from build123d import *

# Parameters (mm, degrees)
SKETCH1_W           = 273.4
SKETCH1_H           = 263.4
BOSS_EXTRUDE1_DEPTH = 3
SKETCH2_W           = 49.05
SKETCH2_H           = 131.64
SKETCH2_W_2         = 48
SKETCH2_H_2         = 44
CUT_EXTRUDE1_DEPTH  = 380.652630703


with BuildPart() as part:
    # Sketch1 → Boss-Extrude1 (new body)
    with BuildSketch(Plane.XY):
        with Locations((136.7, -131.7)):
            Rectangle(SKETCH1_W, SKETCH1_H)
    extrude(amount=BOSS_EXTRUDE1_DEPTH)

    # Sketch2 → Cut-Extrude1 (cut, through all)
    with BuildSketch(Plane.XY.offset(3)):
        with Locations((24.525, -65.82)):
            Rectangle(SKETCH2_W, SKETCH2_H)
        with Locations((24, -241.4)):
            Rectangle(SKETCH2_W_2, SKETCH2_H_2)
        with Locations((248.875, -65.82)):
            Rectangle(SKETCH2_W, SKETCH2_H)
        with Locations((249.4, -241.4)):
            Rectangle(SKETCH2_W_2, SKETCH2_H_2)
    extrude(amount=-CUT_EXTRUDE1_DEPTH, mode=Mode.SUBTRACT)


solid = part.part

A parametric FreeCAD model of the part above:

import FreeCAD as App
import Part
import Sketcher

V = App.Vector


def add_polygon(sketch, points):
    """Adds a closed chain of lines whose ends are joined by coincident constraints."""
    first, n = sketch.GeometryCount, len(points)
    for a, b in zip(points, points[1:] + points[:1]):
        sketch.addGeometry(Part.LineSegment(App.Vector(*a, 0), App.Vector(*b, 0)), False)
    for i in range(n):
        sketch.addConstraint(Sketcher.Constraint("Coincident", first + i, 2, first + (i + 1) % n, 1))

doc = App.newDocument("Part")
body = doc.addObject("PartDesign::Body", "Body")

sketch1 = body.newObject("Sketcher::SketchObject", "Sketch")
sketch1.AttachmentSupport = (doc.getObject("XY_Plane"), [""])
sketch1.MapMode = "FlatFace"
add_polygon(sketch1, [(0, 0), (0, -263.4), (273.4, -263.4), (273.4, 0)])
sketch1.addConstraint(Sketcher.Constraint("Vertical", 0))
sketch1.addConstraint(Sketcher.Constraint("Horizontal", 1))
sketch1.addConstraint(Sketcher.Constraint("Vertical", 2))
sketch1.addConstraint(Sketcher.Constraint("Horizontal", 3))
sketch1.addConstraint(Sketcher.Constraint("Coincident", 3, 2, -1, 1))
sketch1.addConstraint(Sketcher.Constraint("DistanceX", 1, 1, 1, 2, 273.4))
sketch1.addConstraint(Sketcher.Constraint("DistanceY", 0, 2, 0, 1, 263.4))
pad1 = body.newObject("PartDesign::Pad", "Pad")
pad1.Profile = sketch1
pad1.Length = 3

sketch2 = body.newObject("Sketcher::SketchObject", "Sketch001")
sketch2.AttachmentSupport = (doc.getObject("XY_Plane"), [""])
sketch2.MapMode = "FlatFace"
sketch2.AttachmentOffset = App.Placement(V(0, 0, 3), App.Rotation())
add_polygon(sketch2, [(0, 0), (0, -131.64), (49.05, -131.64), (49.05, 0)])
add_polygon(sketch2, [(0, -219.4), (0, -263.4), (48, -263.4), (48, -219.4)])
add_polygon(sketch2, [(224.35, 0), (224.35, -131.64), (273.4, -131.64), (273.4, 0)])
add_polygon(sketch2, [(225.4, -219.4), (225.4, -263.4), (273.4, -263.4), (273.4, -219.4)])
sketch2.addConstraint(Sketcher.Constraint("Vertical", 0))
sketch2.addConstraint(Sketcher.Constraint("Horizontal", 1))
sketch2.addConstraint(Sketcher.Constraint("Vertical", 2))
sketch2.addConstraint(Sketcher.Constraint("Horizontal", 3))
sketch2.addConstraint(Sketcher.Constraint("Vertical", 4))
sketch2.addConstraint(Sketcher.Constraint("Horizontal", 5))
sketch2.addConstraint(Sketcher.Constraint("Vertical", 6))
sketch2.addConstraint(Sketcher.Constraint("Horizontal", 7))
sketch2.addConstraint(Sketcher.Constraint("Vertical", 8))
sketch2.addConstraint(Sketcher.Constraint("Horizontal", 9))
sketch2.addConstraint(Sketcher.Constraint("Vertical", 10))
sketch2.addConstraint(Sketcher.Constraint("Horizontal", 11))
sketch2.addConstraint(Sketcher.Constraint("Vertical", 12))
sketch2.addConstraint(Sketcher.Constraint("Horizontal", 13))
sketch2.addConstraint(Sketcher.Constraint("Vertical", 14))
sketch2.addConstraint(Sketcher.Constraint("Horizontal", 15))
sketch2.addConstraint(Sketcher.Constraint("Coincident", 3, 2, -1, 1))
sketch2.addConstraint(Sketcher.Constraint("PointOnObject", 4, 2, -2))
sketch2.addConstraint(Sketcher.Constraint("PointOnObject", 10, 2, -1))
sketch2.addConstraint(Sketcher.Constraint("Horizontal", 1, 2, 8, 2))
sketch2.addConstraint(Sketcher.Constraint("Horizontal", 5, 2, 12, 2))
sketch2.addConstraint(Sketcher.Constraint("Horizontal", 7, 2, 14, 2))
sketch2.addConstraint(Sketcher.Constraint("Vertical", 10, 2, 13, 2))
sketch2.addConstraint(Sketcher.Constraint("Equal", 3, 9))
sketch2.addConstraint(Sketcher.Constraint("Equal", 7, 13))
sketch2.addConstraint(Sketcher.Constraint("DistanceX", 5, 1, 5, 2, 48.0))
sketch2.addConstraint(Sketcher.Constraint("DistanceY", 4, 2, 4, 1, 44.0))
sketch2.addConstraint(Sketcher.Constraint("DistanceX", 1, 1, 1, 2, 49.05))
sketch2.addConstraint(Sketcher.Constraint("DistanceY", 0, 2, 0, 1, 131.64))
sketch2.addConstraint(Sketcher.Constraint("DistanceY", 4, 2, -1, 1, 263.4))
sketch2.addConstraint(Sketcher.Constraint("DistanceX", -1, 1, 9, 2, 273.4))
pocket1 = body.newObject("PartDesign::Pocket", "Pocket")
pocket1.Profile = sketch2
pocket1.Type = "ThroughAll"

doc.recompute()
